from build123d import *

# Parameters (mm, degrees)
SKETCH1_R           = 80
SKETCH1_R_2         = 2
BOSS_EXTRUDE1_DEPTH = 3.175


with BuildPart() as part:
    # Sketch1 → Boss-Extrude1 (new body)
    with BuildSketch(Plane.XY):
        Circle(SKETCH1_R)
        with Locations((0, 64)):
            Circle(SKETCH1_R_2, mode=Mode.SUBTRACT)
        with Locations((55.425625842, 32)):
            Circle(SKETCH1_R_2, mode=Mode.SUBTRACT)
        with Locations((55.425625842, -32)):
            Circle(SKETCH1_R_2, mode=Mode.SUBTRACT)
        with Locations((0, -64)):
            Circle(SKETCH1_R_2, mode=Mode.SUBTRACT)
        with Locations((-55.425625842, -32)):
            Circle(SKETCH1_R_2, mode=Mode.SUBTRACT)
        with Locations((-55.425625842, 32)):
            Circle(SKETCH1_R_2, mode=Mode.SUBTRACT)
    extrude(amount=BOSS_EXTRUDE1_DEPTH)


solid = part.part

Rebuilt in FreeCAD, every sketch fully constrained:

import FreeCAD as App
import Part
import Sketcher
from FreeCAD import Vector

doc = App.newDocument("Part")
body = doc.addObject("PartDesign::Body", "Body")

# Sketch on XY plane
sketch1 = body.newObject("Sketcher::SketchObject", "Sketch")
sketch1.AttachmentSupport = (doc.getObject("XY_Plane"), [""])
sketch1.MapMode = "FlatFace"
sketch1.addGeometry(Part.Circle(Vector(0, 0, 0), Vector(0, 0, 1), 80), False)
sketch1.addGeometry(Part.Circle(Vector(-55.425626, -32, 0), Vector(0, 0, 1), 2), False)
sketch1.addGeometry(Part.Circle(Vector(0, -64, 0), Vector(0, 0, 1), 2), False)
sketch1.addGeometry(Part.Circle(Vector(55.425626, -32, 0), Vector(0, 0, 1), 2), False)
sketch1.addGeometry(Part.Circle(Vector(-55.425626, 32, 0), Vector(0, 0, 1), 2), False)
sketch1.addGeometry(Part.Circle(Vector(55.425626, 32, 0), Vector(0, 0, 1), 2), False)
sketch1.addGeometry(Part.Circle(Vector(0, 64, 0), Vector(0, 0, 1), 2), False)
sketch1.addConstraint(Sketcher.Constraint("Coincident", 0, 3, -1, 1))
sketch1.addConstraint(Sketcher.Constraint("Equal", 1, 2))
sketch1.addConstraint(Sketcher.Constraint("Equal", 2, 3))
sketch1.addConstraint(Sketcher.Constraint("Equal", 3, 4))
sketch1.addConstraint(Sketcher.Constraint("Equal", 4, 5))
sketch1.addConstraint(Sketcher.Constraint("Equal", 5, 6))
sketch1.addConstraint(Sketcher.Constraint("Symmetric", 3, 3, 4, 3, -1, 1))
sketch1.addConstraint(Sketcher.Constraint("Symmetric", 1, 3, 5, 3, -1, 1))
sketch1.addConstraint(Sketcher.Constraint("Symmetric", 2, 3, 6, 3, -1, 1))
sketch1.addConstraint(Sketcher.Constraint("Symmetric", 1, 3, 3, 3, -2))
sketch1.addConstraint(Sketcher.Constraint("PointOnObject", 2, 3, -2))
sketch1.addConstraint(Sketcher.Constraint("Diameter", 0, 160.0))
sketch1.addConstraint(Sketcher.Constraint("Diameter", 1, 4.0))
sketch1.addConstraint(Sketcher.Constraint("DistanceY", 1, 3, -1, 1, 32.0))
sketch1.addConstraint(Sketcher.Constraint("DistanceY", 2, 3, -1, 1, 64.0))
sketch1.addConstraint(Sketcher.Constraint("DistanceX", 1, 3, 3, 3, 110.851252))
pad1 = body.newObject("PartDesign::Pad", "Pad")
pad1.Profile = sketch1
pad1.Length = 3.175

doc.recompute()
